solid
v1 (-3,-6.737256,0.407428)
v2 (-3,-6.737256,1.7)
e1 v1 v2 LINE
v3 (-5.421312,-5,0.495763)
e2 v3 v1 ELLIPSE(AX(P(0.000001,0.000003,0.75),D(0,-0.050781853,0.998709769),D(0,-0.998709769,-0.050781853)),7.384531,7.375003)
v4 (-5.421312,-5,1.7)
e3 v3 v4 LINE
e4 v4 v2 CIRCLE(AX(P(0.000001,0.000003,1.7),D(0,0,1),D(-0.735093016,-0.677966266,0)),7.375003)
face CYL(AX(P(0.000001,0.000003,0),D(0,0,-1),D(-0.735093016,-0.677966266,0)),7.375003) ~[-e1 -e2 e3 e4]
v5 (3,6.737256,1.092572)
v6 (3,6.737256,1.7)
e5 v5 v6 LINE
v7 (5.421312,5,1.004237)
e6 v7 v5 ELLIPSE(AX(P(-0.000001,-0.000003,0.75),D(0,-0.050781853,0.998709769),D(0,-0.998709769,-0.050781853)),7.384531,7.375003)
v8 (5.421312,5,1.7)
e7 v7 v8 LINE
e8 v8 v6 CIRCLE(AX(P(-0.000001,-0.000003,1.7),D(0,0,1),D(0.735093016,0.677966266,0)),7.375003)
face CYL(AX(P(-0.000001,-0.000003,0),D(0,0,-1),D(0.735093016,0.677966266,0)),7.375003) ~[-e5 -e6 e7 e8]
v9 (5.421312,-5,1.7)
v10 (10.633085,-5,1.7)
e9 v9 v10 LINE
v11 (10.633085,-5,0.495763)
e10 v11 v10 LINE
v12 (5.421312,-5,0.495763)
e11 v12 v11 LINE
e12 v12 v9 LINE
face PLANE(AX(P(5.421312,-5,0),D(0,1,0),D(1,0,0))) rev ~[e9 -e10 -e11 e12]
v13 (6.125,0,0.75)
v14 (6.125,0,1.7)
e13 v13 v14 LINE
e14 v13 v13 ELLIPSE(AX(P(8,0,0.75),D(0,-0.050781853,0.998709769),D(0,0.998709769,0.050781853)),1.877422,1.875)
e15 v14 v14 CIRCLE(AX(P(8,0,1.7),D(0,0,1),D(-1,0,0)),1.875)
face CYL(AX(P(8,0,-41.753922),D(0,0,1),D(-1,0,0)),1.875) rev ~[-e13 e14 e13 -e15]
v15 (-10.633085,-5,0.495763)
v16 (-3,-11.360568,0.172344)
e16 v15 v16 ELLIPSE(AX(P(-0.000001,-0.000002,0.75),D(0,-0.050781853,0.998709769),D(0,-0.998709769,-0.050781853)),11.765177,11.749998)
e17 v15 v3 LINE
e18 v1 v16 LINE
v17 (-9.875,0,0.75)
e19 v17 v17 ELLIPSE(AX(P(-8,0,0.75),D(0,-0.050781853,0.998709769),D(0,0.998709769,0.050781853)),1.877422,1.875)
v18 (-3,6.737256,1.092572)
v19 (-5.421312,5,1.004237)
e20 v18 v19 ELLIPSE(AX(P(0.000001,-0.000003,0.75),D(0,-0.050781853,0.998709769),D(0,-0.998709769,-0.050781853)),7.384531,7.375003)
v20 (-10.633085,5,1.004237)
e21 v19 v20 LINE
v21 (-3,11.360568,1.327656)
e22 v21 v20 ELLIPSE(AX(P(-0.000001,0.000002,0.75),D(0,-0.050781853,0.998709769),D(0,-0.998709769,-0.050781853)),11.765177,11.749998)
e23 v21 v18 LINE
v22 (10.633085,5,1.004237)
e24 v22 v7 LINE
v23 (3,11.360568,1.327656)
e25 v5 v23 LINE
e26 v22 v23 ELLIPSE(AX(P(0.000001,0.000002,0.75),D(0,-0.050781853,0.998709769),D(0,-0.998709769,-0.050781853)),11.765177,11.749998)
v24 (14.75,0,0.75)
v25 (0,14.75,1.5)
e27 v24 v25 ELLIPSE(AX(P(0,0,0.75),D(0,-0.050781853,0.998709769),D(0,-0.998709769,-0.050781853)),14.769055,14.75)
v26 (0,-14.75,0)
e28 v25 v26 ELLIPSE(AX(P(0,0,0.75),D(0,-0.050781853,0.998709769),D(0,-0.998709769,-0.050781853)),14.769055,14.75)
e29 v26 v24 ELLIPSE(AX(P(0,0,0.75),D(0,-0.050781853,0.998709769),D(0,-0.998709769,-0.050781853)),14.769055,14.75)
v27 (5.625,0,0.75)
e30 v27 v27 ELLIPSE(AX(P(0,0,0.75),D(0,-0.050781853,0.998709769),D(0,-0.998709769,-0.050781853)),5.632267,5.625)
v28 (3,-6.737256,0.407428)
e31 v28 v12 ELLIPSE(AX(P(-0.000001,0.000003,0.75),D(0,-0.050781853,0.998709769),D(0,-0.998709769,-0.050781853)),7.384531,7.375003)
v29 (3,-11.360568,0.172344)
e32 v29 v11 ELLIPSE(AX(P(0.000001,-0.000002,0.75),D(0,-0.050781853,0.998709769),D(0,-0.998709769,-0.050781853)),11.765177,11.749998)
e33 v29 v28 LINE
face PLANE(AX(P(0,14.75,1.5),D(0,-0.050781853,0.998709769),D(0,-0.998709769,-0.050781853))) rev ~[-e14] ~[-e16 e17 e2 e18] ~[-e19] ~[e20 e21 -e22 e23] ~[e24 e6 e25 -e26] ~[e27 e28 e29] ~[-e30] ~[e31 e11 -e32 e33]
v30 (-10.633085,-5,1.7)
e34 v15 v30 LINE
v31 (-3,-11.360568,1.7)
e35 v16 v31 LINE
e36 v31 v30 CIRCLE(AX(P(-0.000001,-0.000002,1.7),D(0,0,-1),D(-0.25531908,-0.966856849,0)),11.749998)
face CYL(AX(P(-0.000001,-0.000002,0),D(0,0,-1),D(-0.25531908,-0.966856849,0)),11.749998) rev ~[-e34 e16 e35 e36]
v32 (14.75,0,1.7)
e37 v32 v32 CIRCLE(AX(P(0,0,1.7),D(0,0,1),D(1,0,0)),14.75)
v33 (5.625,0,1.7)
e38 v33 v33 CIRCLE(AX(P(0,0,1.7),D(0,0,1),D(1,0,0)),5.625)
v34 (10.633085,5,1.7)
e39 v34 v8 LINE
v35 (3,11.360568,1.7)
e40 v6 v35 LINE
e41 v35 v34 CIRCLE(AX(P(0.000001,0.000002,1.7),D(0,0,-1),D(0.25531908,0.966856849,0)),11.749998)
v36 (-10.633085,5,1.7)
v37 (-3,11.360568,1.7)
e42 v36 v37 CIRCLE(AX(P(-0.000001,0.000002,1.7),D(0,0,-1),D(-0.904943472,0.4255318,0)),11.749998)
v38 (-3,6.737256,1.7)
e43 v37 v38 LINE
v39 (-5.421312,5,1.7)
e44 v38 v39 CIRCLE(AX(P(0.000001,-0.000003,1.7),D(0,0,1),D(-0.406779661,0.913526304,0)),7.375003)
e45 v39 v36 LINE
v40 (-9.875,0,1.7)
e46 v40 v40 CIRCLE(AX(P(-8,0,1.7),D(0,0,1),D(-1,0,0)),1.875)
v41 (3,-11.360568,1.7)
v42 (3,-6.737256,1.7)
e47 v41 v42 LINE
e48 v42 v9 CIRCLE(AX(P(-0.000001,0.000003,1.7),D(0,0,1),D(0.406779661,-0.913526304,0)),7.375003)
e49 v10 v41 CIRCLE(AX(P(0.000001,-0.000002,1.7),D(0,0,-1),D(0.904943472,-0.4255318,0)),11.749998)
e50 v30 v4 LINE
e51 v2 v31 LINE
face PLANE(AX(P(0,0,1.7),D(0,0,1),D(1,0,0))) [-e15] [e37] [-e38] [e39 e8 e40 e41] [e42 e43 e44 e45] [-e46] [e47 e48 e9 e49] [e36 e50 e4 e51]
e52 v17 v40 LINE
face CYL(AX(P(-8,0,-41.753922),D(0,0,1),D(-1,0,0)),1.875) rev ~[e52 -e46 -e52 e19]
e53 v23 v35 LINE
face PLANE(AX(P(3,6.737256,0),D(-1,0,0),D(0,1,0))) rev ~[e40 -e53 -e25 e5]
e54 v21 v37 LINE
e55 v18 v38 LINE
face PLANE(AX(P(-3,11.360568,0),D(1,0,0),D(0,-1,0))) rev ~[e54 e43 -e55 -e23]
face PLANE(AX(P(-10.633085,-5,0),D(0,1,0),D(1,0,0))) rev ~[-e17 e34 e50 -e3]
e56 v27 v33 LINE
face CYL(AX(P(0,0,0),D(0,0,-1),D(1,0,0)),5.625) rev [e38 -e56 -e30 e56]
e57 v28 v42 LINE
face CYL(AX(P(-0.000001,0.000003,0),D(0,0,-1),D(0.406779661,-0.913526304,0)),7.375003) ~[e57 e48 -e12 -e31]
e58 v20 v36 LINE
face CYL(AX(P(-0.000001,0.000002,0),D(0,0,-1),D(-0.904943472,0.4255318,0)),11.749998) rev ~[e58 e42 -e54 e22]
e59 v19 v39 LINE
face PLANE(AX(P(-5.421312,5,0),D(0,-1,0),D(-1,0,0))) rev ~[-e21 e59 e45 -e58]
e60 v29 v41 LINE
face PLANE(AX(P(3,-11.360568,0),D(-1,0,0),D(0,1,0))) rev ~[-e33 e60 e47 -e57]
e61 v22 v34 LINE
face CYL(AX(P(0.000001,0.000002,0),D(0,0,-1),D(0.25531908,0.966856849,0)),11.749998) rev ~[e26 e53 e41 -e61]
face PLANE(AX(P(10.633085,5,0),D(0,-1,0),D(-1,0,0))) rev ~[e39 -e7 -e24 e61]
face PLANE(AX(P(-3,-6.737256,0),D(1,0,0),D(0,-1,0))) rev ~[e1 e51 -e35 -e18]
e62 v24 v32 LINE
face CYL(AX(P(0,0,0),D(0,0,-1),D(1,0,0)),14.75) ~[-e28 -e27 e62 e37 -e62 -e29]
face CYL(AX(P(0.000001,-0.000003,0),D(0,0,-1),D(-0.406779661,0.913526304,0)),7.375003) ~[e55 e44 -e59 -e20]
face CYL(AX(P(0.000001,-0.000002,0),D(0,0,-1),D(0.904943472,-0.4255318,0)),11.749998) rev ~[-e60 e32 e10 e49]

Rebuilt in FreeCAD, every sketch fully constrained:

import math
import FreeCAD as App
import Part
import Sketcher

doc = App.newDocument("Part")
body = doc.addObject("PartDesign::Body", "Body")

sketch1 = body.newObject("Sketcher::SketchObject", "Sketch")
sketch1.AttachmentSupport = (doc.getObject("XY_Plane"), [""])
sketch1.MapMode = "FlatFace"
sketch1.addGeometry(Part.Circle(App.Vector(0, 0, 0), App.Vector(0, 0, 1), 14.8), False)
sketch1.addGeometry(Part.ArcOfCircle(Part.Circle(App.Vector(0, 0, 0), App.Vector(0, 0, 1), 11.7), math.radians(25), math.radians(75)), False)
sketch1.addGeometry(Part.LineSegment(App.Vector(10.6, 5, 0), App.Vector(5.4, 5, 0)), False)
sketch1.addGeometry(Part.ArcOfCircle(Part.Circle(App.Vector(0, 0, 0), App.Vector(0, 0, 1), 7.4), math.radians(43), math.radians(66)), False)
sketch1.addGeometry(Part.LineSegment(App.Vector(3, 6.7, 0), App.Vector(3, 11.4, 0)), False)
sketch1.addGeometry(Part.ArcOfCircle(Part.Circle(App.Vector(0, 0, 0), App.Vector(0, 0, 1), 11.7), math.radians(-75), math.radians(-25)), False)
sketch1.addGeometry(Part.LineSegment(App.Vector(3, -11.4, 0), App.Vector(3, -6.7, 0)), False)
sketch1.addGeometry(Part.ArcOfCircle(Part.Circle(App.Vector(0, 0, 0), App.Vector(0, 0, 1), 7.4), math.radians(-66), math.radians(-43)), False)
sketch1.addGeometry(Part.LineSegment(App.Vector(5.4, -5, 0), App.Vector(10.6, -5, 0)), False)
sketch1.addGeometry(Part.ArcOfCircle(Part.Circle(App.Vector(0, 0, 0), App.Vector(0, 0, 1), 11.7), math.radians(-155), math.radians(-105)), False)
sketch1.addGeometry(Part.LineSegment(App.Vector(-10.6, -5, 0), App.Vector(-5.4, -5, 0)), False)
sketch1.addGeometry(Part.ArcOfCircle(Part.Circle(App.Vector(0, 0, 0), App.Vector(0, 0, 1), 7.4), math.radians(-137), math.radians(-114)), False)
sketch1.addGeometry(Part.LineSegment(App.Vector(-3, -6.7, 0), App.Vector(-3, -11.4, 0)), False)
sketch1.addGeometry(Part.ArcOfCircle(Part.Circle(App.Vector(0, 0, 0), App.Vector(0, 0, 1), 11.7), math.radians(105), math.radians(155)), False)
sketch1.addGeometry(Part.LineSegment(App.Vector(-3, 11.4, 0), App.Vector(-3, 6.7, 0)), False)
sketch1.addGeometry(Part.ArcOfCircle(Part.Circle(App.Vector(0, 0, 0), App.Vector(0, 0, 1), 7.4), math.radians(114), math.radians(137)), False)
sketch1.addGeometry(Part.LineSegment(App.Vector(-5.4, 5, 0), App.Vector(-10.6, 5, 0)), False)
sketch1.addGeometry(Part.Circle(App.Vector(0, 0, 0), App.Vector(0, 0, 1), 5.6), False)
sketch1.addConstraint(Sketcher.Constraint("Coincident", 1, 1, 2, 1))
sketch1.addConstraint(Sketcher.Constraint("Coincident", 2, 2, 3, 1))
sketch1.addConstraint(Sketcher.Constraint("Coincident", 3, 2, 4, 1))
sketch1.addConstraint(Sketcher.Constraint("Coincident", 4, 2, 1, 2))
sketch1.addConstraint(Sketcher.Constraint("Coincident", 5, 1, 6, 1))
sketch1.addConstraint(Sketcher.Constraint("Coincident", 6, 2, 7, 1))
sketch1.addConstraint(Sketcher.Constraint("Coincident", 7, 2, 8, 1))
sketch1.addConstraint(Sketcher.Constraint("Coincident", 8, 2, 5, 2))
sketch1.addConstraint(Sketcher.Constraint("Coincident", 9, 1, 10, 1))
sketch1.addConstraint(Sketcher.Constraint("Coincident", 10, 2, 11, 1))
sketch1.addConstraint(Sketcher.Constraint("Coincident", 11, 2, 12, 1))
sketch1.addConstraint(Sketcher.Constraint("Coincident", 12, 2, 9, 2))
sketch1.addConstraint(Sketcher.Constraint("Coincident", 13, 1, 14, 1))
sketch1.addConstraint(Sketcher.Constraint("Coincident", 14, 2, 15, 1))
sketch1.addConstraint(Sketcher.Constraint("Coincident", 15, 2, 16, 1))
sketch1.addConstraint(Sketcher.Constraint("Coincident", 16, 2, 13, 2))
sketch1.addConstraint(Sketcher.Constraint("Horizontal", 2))
sketch1.addConstraint(Sketcher.Constraint("Vertical", 4))
sketch1.addConstraint(Sketcher.Constraint("Vertical", 6))
sketch1.addConstraint(Sketcher.Constraint("Horizontal", 8))
sketch1.addConstraint(Sketcher.Constraint("Horizontal", 10))
sketch1.addConstraint(Sketcher.Constraint("Vertical", 12))
sketch1.addConstraint(Sketcher.Constraint("Vertical", 14))
sketch1.addConstraint(Sketcher.Constraint("Horizontal", 16))
sketch1.addConstraint(Sketcher.Constraint("Coincident", 0, 3, -1, 1))
sketch1.addConstraint(Sketcher.Constraint("Coincident", 1, 3, -1, 1))
sketch1.addConstraint(Sketcher.Constraint("Coincident", 3, 3, -1, 1))
sketch1.addConstraint(Sketcher.Constraint("Coincident", 5, 3, -1, 1))
sketch1.addConstraint(Sketcher.Constraint("Coincident", 7, 3, -1, 1))
sketch1.addConstraint(Sketcher.Constraint("Coincident", 9, 3, -1, 1))
sketch1.addConstraint(Sketcher.Constraint("Coincident", 11, 3, -1, 1))
sketch1.addConstraint(Sketcher.Constraint("Coincident", 13, 3, -1, 1))
sketch1.addConstraint(Sketcher.Constraint("Coincident", 15, 3, -1, 1))
sketch1.addConstraint(Sketcher.Constraint("Coincident", 17, 3, -1, 1))
sketch1.addConstraint(Sketcher.Constraint("Equal", 1, 5))
sketch1.addConstraint(Sketcher.Constraint("Equal", 3, 7))
sketch1.addConstraint(Sketcher.Constraint("Equal", 5, 9))
sketch1.addConstraint(Sketcher.Constraint("Equal", 7, 11))
sketch1.addConstraint(Sketcher.Constraint("Equal", 9, 13))
sketch1.addConstraint(Sketcher.Constraint("Equal", 11, 15))
sketch1.addConstraint(Sketcher.Constraint("Horizontal", 8, 2, 9, 1))
sketch1.addConstraint(Sketcher.Constraint("Horizontal", 6, 2, 11, 2))
sketch1.addConstraint(Sketcher.Constraint("Horizontal", 4, 2, 13, 1))
sketch1.addConstraint(Sketcher.Constraint("Horizontal", 2, 2, 15, 2))
sketch1.addConstraint(Sketcher.Constraint("Vertical", 4, 2, 5, 1))
sketch1.addConstraint(Sketcher.Constraint("Vertical", 2, 2, 7, 2))
sketch1.addConstraint(Sketcher.Constraint("Diameter", 0, 29.5))
sketch1.addConstraint(Sketcher.Constraint("Diameter", 17, 11.25))
sketch1.addConstraint(Sketcher.Constraint("DistanceY", -1, 1, 1, 1, 5.0))
sketch1.addConstraint(Sketcher.Constraint("DistanceX", -1, 1, 3, 2, 3.0))
sketch1.addConstraint(Sketcher.Constraint("Radius", 1, 11.749998))
sketch1.addConstraint(Sketcher.Constraint("Radius", 3, 7.375003))
pad1 = body.newObject("PartDesign::Pad", "Pad")
pad1.Profile = sketch1
pad1.Length = 1.7

sketch2 = body.newObject("Sketcher::SketchObject", "Sketch001")
sketch2.AttachmentSupport = (doc.getObject("XY_Plane"), [""])
sketch2.MapMode = "FlatFace"
sketch2.addGeometry(Part.Circle(App.Vector(-8, 0, 0), App.Vector(0, 0, 1), 1.9), False)
sketch2.addGeometry(Part.Circle(App.Vector(8, 0, 0), App.Vector(0, 0, 1), 1.9), False)
sketch2.addConstraint(Sketcher.Constraint("Equal", 0, 1))
sketch2.addConstraint(Sketcher.Constraint("Symmetric", 0, 3, 1, 3, -1, 1))
sketch2.addConstraint(Sketcher.Constraint("PointOnObject", 0, 3, -1))
sketch2.addConstraint(Sketcher.Constraint("Diameter", 0, 3.75))
sketch2.addConstraint(Sketcher.Constraint("DistanceX", 0, 3, -1, 1, 8.0))
doc.recompute()
hole = body.newObject("PartDesign::Hole", "Hole")
hole.Profile = sketch2
hole.ThreadType = "None"
hole.Diameter = 3.75
hole.DepthType = "ThroughAll"
hole.Reversed = True

sketch3 = body.newObject("Sketcher::SketchObject", "Sketch002")
sketch3.AttachmentSupport = (doc.getObject("YZ_Plane"), [""])
sketch3.MapMode = "FlatFace"
sketch3.addGeometry(Part.LineSegment(App.Vector(14.8, 1.5, 0), App.Vector(-14.8, 0, 0)), False)
sketch3.addGeometry(Part.LineSegment(App.Vector(-14.8, 0, 0), App.Vector(14.8, 0, 0)), False)
sketch3.addGeometry(Part.LineSegment(App.Vector(14.8, 0, 0), App.Vector(14.8, 1.5, 0)), False)
sketch3.addConstraint(Sketcher.Constraint("Coincident", 0, 2, 1, 1))
sketch3.addConstraint(Sketcher.Constraint("Coincident", 1, 2, 2, 1))
sketch3.addConstraint(Sketcher.Constraint("Coincident", 2, 2, 0, 1))
sketch3.addConstraint(Sketcher.Constraint("Horizontal", 1))
sketch3.addConstraint(Sketcher.Constraint("Vertical", 2))
sketch3.addConstraint(Sketcher.Constraint("Symmetric", 0, 2, 1, 2, -1, 1))
sketch3.addConstraint(Sketcher.Constraint("DistanceX", 1, 1, 1, 2, 29.5))
sketch3.addConstraint(Sketcher.Constraint("DistanceY", 2, 1, 2, 2, 1.5))
pocket1 = body.newObject("PartDesign::Pocket", "Pocket")
pocket1.Profile = sketch3
pocket1.Length = 30
pocket1.Midplane = True

doc.recompute()
